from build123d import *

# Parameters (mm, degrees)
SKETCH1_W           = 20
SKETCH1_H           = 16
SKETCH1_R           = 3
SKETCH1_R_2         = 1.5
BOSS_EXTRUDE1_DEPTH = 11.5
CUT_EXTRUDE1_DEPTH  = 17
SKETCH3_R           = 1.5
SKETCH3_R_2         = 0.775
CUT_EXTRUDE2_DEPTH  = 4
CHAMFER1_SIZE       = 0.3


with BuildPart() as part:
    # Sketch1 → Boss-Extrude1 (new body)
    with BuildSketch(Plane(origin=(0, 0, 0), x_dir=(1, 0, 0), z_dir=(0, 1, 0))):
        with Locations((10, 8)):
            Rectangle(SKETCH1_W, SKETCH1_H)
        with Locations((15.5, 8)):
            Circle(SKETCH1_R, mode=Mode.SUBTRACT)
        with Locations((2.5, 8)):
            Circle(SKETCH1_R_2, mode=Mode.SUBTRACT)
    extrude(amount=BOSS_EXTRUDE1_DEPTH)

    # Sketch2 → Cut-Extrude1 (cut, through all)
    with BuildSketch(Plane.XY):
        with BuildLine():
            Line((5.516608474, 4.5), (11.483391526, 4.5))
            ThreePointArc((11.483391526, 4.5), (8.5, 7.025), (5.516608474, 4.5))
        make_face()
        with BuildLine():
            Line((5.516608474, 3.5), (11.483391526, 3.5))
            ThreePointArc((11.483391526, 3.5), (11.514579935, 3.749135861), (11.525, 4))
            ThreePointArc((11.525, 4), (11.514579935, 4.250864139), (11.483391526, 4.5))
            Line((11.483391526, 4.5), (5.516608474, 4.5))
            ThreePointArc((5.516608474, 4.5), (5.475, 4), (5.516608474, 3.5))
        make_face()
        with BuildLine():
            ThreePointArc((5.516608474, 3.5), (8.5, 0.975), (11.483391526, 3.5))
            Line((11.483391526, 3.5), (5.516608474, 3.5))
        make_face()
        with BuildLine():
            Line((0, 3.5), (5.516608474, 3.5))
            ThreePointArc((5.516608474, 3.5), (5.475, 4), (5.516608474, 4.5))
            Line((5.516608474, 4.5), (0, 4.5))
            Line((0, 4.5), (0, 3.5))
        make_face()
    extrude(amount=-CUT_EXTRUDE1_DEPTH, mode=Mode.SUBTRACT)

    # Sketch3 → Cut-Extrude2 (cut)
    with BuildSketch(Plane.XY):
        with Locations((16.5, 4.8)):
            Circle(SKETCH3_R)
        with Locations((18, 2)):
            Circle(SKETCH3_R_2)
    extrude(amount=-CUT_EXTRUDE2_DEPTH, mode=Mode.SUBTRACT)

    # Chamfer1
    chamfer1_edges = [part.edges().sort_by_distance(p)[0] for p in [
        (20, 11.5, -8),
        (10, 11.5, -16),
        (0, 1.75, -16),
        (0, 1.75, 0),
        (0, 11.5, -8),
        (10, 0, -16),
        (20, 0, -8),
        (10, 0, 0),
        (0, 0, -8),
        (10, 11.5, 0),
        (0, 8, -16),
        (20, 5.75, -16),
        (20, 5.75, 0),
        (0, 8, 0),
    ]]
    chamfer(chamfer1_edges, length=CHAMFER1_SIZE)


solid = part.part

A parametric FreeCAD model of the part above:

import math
import FreeCAD as App
import Part
import Sketcher

V = App.Vector


def edges_at(feature, points):
    """Names of the edges that pass closest to the given points."""
    edges = feature.Shape.Edges
    near = lambda p: min(range(len(edges)), key=lambda i: edges[i].distToShape(Part.Vertex(*p))[0])
    return sorted({f"Edge{near(p) + 1}" for p in points})


def add_polygon(sketch, points):
    """Adds a closed chain of lines whose ends are joined by coincident constraints."""
    first, n = sketch.GeometryCount, len(points)
    for a, b in zip(points, points[1:] + points[:1]):
        sketch.addGeometry(Part.LineSegment(App.Vector(*a, 0), App.Vector(*b, 0)), False)
    for i in range(n):
        sketch.addConstraint(Sketcher.Constraint("Coincident", first + i, 2, first + (i + 1) % n, 1))

doc = App.newDocument("Part")
body = doc.addObject("PartDesign::Body", "Body")

# Sketch on XZ plane
sketch1 = doc.addObject("Sketcher::SketchObject", "Sketch")
body.addObject(sketch1)
sketch1.AttachmentSupport = (doc.XZ_Plane, [""])
sketch1.MapMode = "FlatFace"
add_polygon(sketch1, [(0, -16), (0, 0), (20, 0), (20, -16)])  # lines 0-3
sketch1.addGeometry(Part.Circle(V(2.5, -8, 0), V(0, 0, 1), 1.5), False)  # 4
sketch1.addGeometry(Part.Circle(V(15.5, -8, 0), V(0, 0, 1), 3), False)  # 5
sketch1.addConstraint([
    Sketcher.Constraint("Vertical", 0),
    Sketcher.Constraint("Horizontal", 1),
    Sketcher.Constraint("Vertical", 2),
    Sketcher.Constraint("Horizontal", 3),
    Sketcher.Constraint("Coincident", 0, 2, -1, 1),
    Sketcher.Constraint("Horizontal", 4, 3, 5, 3),
    Sketcher.Constraint("Diameter", 4, 3.0),
    Sketcher.Constraint("Diameter", 5, 6.0),
    Sketcher.Constraint("DistanceX", 1, 1, 1, 2, 20.0),
    Sketcher.Constraint("DistanceY", 0, 1, 0, 2, 16.0),
    Sketcher.Constraint("DistanceY", 4, 3, -1, 1, 8.0),
    Sketcher.Constraint("DistanceX", 4, 3, 5, 3, 13.0),
    Sketcher.Constraint("DistanceX", -1, 1, 4, 3, 2.5),
])
pad1 = doc.addObject("PartDesign::Pad", "Pad")
body.addObject(pad1)
pad1.Profile = sketch1
pad1.Length = 11.5
pad1.Reversed = True

# Sketch on XY plane
sketch2 = doc.addObject("Sketcher::SketchObject", "Sketch001")
body.addObject(sketch2)
sketch2.AttachmentSupport = (doc.XY_Plane, [""])
sketch2.MapMode = "FlatFace"
sketch2.addGeometry([
    Part.ArcOfCircle(Part.Circle(V(8.5, 4, 0), V(0, 0, 1), 3), math.radians(10), math.radians(170)),  # 0
    Part.LineSegment(V(5.5, 4.5, 0), V(0, 4.5, 0)),  # 1
    Part.LineSegment(V(0, 4.5, 0), V(0, 3.5, 0)),  # 2
    Part.LineSegment(V(0, 3.5, 0), V(5.5, 3.5, 0)),  # 3
    Part.ArcOfCircle(Part.Circle(V(8.5, 4, 0), V(0, 0, 1), 3), math.radians(-170), math.radians(-10)),  # 4
    Part.ArcOfCircle(Part.Circle(V(8.5, 4, 0), V(0, 0, 1), 3), math.radians(-9.51), math.radians(0)),  # 5
    Part.ArcOfCircle(Part.Circle(V(8.5, 4, 0), V(0, 0, 1), 3), math.radians(0), math.radians(9.51)),  # 6
], False)
sketch2.addConstraint([
    Sketcher.Constraint("Coincident", 0, 2, 1, 1),
    Sketcher.Constraint("Coincident", 1, 2, 2, 1),
    Sketcher.Constraint("Coincident", 2, 2, 3, 1),
    Sketcher.Constraint("Coincident", 3, 2, 4, 1),
    Sketcher.Constraint("Tangent", 4, 2, 5, 1),
    Sketcher.Constraint("Tangent", 5, 2, 6, 1),
    Sketcher.Constraint("Tangent", 6, 2, 0, 1),
    Sketcher.Constraint("Horizontal", 1),
    Sketcher.Constraint("Vertical", 2),
    Sketcher.Constraint("Horizontal", 3),
    Sketcher.Constraint("Coincident", 4, 3, 0, 3),
    Sketcher.Constraint("Equal", 0, 4),
    Sketcher.Constraint("PointOnObject", 1, 2, -2),
    Sketcher.Constraint("Horizontal", 3, 2, 4, 2),
    Sketcher.Constraint("Horizontal", 6, 3, 5, 2),
    Sketcher.Constraint("Horizontal", 1, 2, 6, 2),
    Sketcher.Constraint("Vertical", 0, 2, 3, 2),
    Sketcher.Constraint("DistanceY", 2, 2, 2, 1, 1.0),
    Sketcher.Constraint("DistanceY", -1, 1, 0, 3, 4.0),
    Sketcher.Constraint("Radius", 0, 3.025),
    Sketcher.Constraint("DistanceX", -1, 1, 0, 3, 8.5),
])
pocket1 = doc.addObject("PartDesign::Pocket", "Pocket")
body.addObject(pocket1)
pocket1.Profile = sketch2
pocket1.Type = "ThroughAll"

# Sketch on XY plane
sketch3 = doc.addObject("Sketcher::SketchObject", "Sketch002")
body.addObject(sketch3)
sketch3.AttachmentSupport = (doc.XY_Plane, [""])
sketch3.MapMode = "FlatFace"
sketch3.addGeometry([
    Part.Circle(V(16.5, 4.8, 0), V(0, 0, 1), 1.5),
    Part.Circle(V(18, 2, 0), V(0, 0, 1), 0.8),
], False)
sketch3.addConstraint([
    Sketcher.Constraint("Diameter", 0, 3.0),
    Sketcher.Constraint("Diameter", 1, 1.55),
    Sketcher.Constraint("DistanceX", -1, 1, 1, 3, 18.0),
    Sketcher.Constraint("DistanceY", -1, 1, 1, 3, 2.0),
    Sketcher.Constraint("DistanceX", -1, 1, 0, 3, 16.5),
    Sketcher.Constraint("DistanceY", -1, 1, 0, 3, 4.8),
])
pocket2 = doc.addObject("PartDesign::Pocket", "Pocket001")
body.addObject(pocket2)
pocket2.Profile = sketch3
pocket2.Length = 4
doc.recompute()

chamfer = doc.addObject("PartDesign::Chamfer", "Chamfer")
body.addObject(chamfer)
chamfer.Base = (pocket2, edges_at(pocket2, [
    (20, 11.5, -8),
    (10, 11.5, -16),
    (0, 1.75, -16),
    (0, 1.75, 0),
    (0, 11.5, -8),
    (10, 0, -16),
    (20, 0, -8),
    (10, 0, 0),
    (0, 0, -8),
    (10, 11.5, 0),
    (0, 8, -16),
    (20, 5.75, -16),
    (20, 5.75, 0),
    (0, 8, 0),
]))
chamfer.Size = 0.3

doc.recompute()
